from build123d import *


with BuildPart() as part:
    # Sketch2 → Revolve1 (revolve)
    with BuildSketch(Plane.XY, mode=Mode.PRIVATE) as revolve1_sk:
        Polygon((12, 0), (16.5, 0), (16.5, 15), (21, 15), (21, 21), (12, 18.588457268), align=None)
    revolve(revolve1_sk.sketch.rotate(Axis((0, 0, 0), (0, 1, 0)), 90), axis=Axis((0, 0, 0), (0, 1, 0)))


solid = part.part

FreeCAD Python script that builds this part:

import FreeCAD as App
import Part
import Sketcher

V = App.Vector
Q = App.Units.Quantity


def add_polygon(sketch, points):
    """Adds a closed chain of lines whose ends are joined by coincident constraints."""
    first, n = sketch.GeometryCount, len(points)
    for a, b in zip(points, points[1:] + points[:1]):
        sketch.addGeometry(Part.LineSegment(App.Vector(*a, 0), App.Vector(*b, 0)), False)
    for i in range(n):
        sketch.addConstraint(Sketcher.Constraint("Coincident", first + i, 2, first + (i + 1) % n, 1))

doc = App.newDocument("Part")
params = doc.addObject("Spreadsheet::Sheet", "Params")
for row, (alias, value) in enumerate([
    ("sketch1_height", "15 mm"),
    ("sketch1_height2", "6 mm"),
    ("sketch1_width", "4.5 mm"),
    ("revolution_angle", "360 deg"),
], start=1):
    params.set(f"A{row}", alias)
    params.set(f"B{row}", "=" + value)
    params.setAlias(f"B{row}", alias)

body = doc.addObject("PartDesign::Body", "Body")

# Sketch on XY plane
sketch1 = doc.addObject("Sketcher::SketchObject", "Sketch")
body.addObject(sketch1)
sketch1.AttachmentSupport = (doc.XY_Plane, [""])
sketch1.MapMode = "FlatFace"
add_polygon(sketch1, [(12, 0), (16.5, 0), (16.5, 15), (21, 15), (21, 21), (12, 18.6)])  # lines 0-5
sketch1.addConstraint(Sketcher.Constraint("Horizontal", 0))
sketch1.addConstraint(Sketcher.Constraint("Vertical", 1))
sketch1.addConstraint(Sketcher.Constraint("Horizontal", 2))
sketch1.addConstraint(Sketcher.Constraint("Vertical", 3))
sketch1.addConstraint(Sketcher.Constraint("Vertical", 5))
sketch1.addConstraint(Sketcher.Constraint("PointOnObject", 0, 2, -1))
sketch1.addConstraint(Sketcher.Constraint("Equal", 0, 2))
sketch1.addConstraint(Sketcher.Constraint("DistanceY", 1, 1, 1, 2, 15.0))
sketch1.addConstraint(Sketcher.Constraint("DistanceY", 3, 1, 3, 2, 6.0))
sketch1.addConstraint(Sketcher.Constraint("Angle", 4, Q("-165 deg")))
sketch1.addConstraint(Sketcher.Constraint("DistanceX", 0, 1, 0, 2, 4.5))
sketch1.addConstraint(Sketcher.Constraint("DistanceX", -1, 1, 2, 2, 21.0))
sketch1.setExpression("Constraints[13]", "Params.sketch1_height")
sketch1.setExpression("Constraints[14]", "Params.sketch1_height2")
sketch1.setExpression("Constraints[16]", "Params.sketch1_width")
revolution = doc.addObject("PartDesign::Revolution", "Revolution")
body.addObject(revolution)
revolution.Profile = sketch1
revolution.ReferenceAxis = (sketch1, ["V_Axis"])
revolution.setExpression("Angle", "Params.revolution_angle")

doc.recompute()
